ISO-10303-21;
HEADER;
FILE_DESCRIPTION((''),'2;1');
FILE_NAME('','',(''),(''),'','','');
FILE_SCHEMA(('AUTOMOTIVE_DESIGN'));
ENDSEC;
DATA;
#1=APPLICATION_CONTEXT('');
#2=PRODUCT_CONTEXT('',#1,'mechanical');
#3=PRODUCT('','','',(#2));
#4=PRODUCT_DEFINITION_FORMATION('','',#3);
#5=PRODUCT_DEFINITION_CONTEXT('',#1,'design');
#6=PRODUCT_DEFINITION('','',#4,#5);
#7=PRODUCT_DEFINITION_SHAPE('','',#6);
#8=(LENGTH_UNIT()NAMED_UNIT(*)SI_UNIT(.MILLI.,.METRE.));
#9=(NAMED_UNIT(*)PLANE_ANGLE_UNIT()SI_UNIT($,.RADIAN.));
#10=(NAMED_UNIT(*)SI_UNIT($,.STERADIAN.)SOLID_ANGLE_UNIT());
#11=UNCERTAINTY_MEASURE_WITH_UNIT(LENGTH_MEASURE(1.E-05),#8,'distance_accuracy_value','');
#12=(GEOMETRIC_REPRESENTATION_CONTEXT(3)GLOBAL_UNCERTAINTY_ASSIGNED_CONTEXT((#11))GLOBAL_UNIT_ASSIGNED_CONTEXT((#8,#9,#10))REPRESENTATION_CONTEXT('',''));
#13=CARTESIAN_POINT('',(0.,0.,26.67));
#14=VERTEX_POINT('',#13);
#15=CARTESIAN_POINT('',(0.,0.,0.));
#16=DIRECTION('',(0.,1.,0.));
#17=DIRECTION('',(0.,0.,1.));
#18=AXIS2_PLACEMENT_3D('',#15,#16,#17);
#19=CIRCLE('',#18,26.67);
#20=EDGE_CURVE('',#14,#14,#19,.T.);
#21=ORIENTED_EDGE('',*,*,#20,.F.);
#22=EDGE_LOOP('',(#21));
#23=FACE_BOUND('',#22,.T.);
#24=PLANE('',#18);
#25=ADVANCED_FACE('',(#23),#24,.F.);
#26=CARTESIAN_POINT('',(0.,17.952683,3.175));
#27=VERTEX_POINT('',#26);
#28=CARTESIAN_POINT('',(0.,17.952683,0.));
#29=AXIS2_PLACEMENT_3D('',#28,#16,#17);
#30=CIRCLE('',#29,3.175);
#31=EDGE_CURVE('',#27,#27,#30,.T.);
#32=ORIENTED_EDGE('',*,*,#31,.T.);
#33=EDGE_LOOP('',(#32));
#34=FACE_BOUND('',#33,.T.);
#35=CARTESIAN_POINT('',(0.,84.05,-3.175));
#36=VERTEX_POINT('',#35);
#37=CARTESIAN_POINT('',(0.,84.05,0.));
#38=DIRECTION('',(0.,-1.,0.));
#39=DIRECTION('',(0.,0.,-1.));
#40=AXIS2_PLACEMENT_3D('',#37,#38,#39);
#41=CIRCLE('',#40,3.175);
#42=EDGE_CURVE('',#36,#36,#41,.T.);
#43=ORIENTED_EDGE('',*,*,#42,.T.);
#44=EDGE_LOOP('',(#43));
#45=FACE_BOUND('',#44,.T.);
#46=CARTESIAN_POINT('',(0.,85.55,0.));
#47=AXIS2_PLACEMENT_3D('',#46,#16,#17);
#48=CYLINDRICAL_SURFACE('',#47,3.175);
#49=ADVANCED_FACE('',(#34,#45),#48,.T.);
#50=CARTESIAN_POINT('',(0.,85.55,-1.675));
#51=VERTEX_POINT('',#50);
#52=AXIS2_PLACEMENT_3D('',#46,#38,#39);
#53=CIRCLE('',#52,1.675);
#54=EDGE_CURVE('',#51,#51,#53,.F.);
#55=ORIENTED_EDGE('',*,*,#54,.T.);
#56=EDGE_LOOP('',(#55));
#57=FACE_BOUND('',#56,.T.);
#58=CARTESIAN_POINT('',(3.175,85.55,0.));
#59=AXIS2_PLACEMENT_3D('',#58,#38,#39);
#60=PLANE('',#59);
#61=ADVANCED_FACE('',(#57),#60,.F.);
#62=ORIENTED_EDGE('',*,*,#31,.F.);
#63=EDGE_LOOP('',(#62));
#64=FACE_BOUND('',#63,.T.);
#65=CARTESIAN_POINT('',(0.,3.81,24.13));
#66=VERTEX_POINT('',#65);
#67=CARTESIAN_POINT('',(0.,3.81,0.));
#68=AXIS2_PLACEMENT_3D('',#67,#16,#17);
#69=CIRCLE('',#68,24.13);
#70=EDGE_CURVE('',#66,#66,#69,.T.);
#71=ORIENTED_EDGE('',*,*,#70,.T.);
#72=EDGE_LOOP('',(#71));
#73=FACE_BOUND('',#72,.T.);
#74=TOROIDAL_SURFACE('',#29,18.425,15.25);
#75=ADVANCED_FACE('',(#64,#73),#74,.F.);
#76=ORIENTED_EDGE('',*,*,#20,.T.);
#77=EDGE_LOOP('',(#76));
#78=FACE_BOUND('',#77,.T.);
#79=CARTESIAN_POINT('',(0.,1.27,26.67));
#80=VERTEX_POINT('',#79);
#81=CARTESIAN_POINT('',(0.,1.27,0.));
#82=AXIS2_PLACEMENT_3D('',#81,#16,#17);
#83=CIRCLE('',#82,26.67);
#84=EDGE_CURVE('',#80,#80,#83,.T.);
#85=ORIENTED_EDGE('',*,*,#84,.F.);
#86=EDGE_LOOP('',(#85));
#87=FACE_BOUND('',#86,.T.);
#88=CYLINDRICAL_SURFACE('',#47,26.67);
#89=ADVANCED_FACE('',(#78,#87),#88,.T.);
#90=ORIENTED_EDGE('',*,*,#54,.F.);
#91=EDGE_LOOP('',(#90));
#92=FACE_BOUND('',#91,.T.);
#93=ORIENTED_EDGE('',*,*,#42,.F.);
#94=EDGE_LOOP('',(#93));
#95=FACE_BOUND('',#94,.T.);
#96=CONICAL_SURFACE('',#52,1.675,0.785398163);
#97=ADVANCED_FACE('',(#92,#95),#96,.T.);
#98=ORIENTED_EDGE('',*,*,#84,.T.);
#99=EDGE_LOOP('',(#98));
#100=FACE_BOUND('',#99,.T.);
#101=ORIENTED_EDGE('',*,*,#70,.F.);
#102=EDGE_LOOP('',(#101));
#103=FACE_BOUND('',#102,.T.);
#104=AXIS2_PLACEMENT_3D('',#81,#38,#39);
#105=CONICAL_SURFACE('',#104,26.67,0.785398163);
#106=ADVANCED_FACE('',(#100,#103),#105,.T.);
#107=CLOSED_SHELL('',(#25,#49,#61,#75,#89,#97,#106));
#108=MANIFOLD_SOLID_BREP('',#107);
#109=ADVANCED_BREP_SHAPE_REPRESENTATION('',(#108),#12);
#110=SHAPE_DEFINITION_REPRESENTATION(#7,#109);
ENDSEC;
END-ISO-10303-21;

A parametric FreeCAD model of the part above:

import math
import FreeCAD as App
import Part
import Sketcher
from FreeCAD import Vector
Q = App.Units.Quantity


def edges_at(feature, points):
    """Names of the edges that pass closest to the given points."""
    edges = feature.Shape.Edges
    near = lambda p: min(range(len(edges)), key=lambda i: edges[i].distToShape(Part.Vertex(*p))[0])
    return sorted({f"Edge{near(p) + 1}" for p in points})

doc = App.newDocument("Part")
body = doc.addObject("PartDesign::Body", "Body")

sketch1 = body.newObject("Sketcher::SketchObject", "Sketch")
sketch1.AttachmentSupport = (doc.getObject("XY_Plane"), [""])
sketch1.MapMode = "FlatFace"
sketch1.addGeometry(Part.LineSegment(Vector(0, 0, 0), Vector(26.67, 0, 0)), False)
sketch1.addGeometry(Part.LineSegment(Vector(26.67, 0, 0), Vector(26.67, 1.27, 0)), False)
sketch1.addGeometry(Part.LineSegment(Vector(26.67, 1.27, 0), Vector(24.13, 3.81, 0)), False)
sketch1.addGeometry(Part.ArcOfCircle(Part.Circle(Vector(18.425, 17.952683, 0), Vector(0, 0, 1), 15.25), math.radians(-180), math.radians(-68.031403)), False)
sketch1.addGeometry(Part.LineSegment(Vector(3.175, 17.952683, 0), Vector(3.175, 85.55, 0)), False)
sketch1.addGeometry(Part.LineSegment(Vector(3.175, 85.55, 0), Vector(0, 85.55, 0)), False)
sketch1.addGeometry(Part.LineSegment(Vector(0, 85.55, 0), Vector(0, 0, 0)), False)
sketch1.addConstraint(Sketcher.Constraint("Coincident", 0, 2, 1, 1))
sketch1.addConstraint(Sketcher.Constraint("Coincident", 1, 2, 2, 1))
sketch1.addConstraint(Sketcher.Constraint("Coincident", 2, 2, 3, 2))
sketch1.addConstraint(Sketcher.Constraint("Tangent", 3, 1, 4, 1))
sketch1.addConstraint(Sketcher.Constraint("Coincident", 4, 2, 5, 1))
sketch1.addConstraint(Sketcher.Constraint("Coincident", 5, 2, 6, 1))
sketch1.addConstraint(Sketcher.Constraint("Coincident", 6, 2, 0, 1))
sketch1.addConstraint(Sketcher.Constraint("Horizontal", 0))
sketch1.addConstraint(Sketcher.Constraint("Vertical", 1))
sketch1.addConstraint(Sketcher.Constraint("Vertical", 4))
sketch1.addConstraint(Sketcher.Constraint("Horizontal", 5))
sketch1.addConstraint(Sketcher.Constraint("Vertical", 6))
sketch1.addConstraint(Sketcher.Constraint("Coincident", 6, 2, -1, 1))
sketch1.addConstraint(Sketcher.Constraint("Angle", 2, Q("135 deg")))
sketch1.addConstraint(Sketcher.Constraint("DistanceX", 0, 1, 0, 2, Q("1.05 in")))
sketch1.addConstraint(Sketcher.Constraint("DistanceY", 1, 1, 1, 2, Q("0.05 in")))
sketch1.addConstraint(Sketcher.Constraint("DistanceX", 2, 2, 1, 2, Q("0.1 in")))
sketch1.addConstraint(Sketcher.Constraint("DistanceX", 5, 2, 5, 1, Q("0.125 in")))
sketch1.addConstraint(Sketcher.Constraint("Radius", 3, Q("15.25 mm")))
sketch1.addConstraint(Sketcher.Constraint("DistanceY", 6, 2, 6, 1, Q("85.55 mm")))
revolution = body.newObject("PartDesign::Revolution", "Revolution")
revolution.Profile = sketch1
revolution.ReferenceAxis = (sketch1, ["V_Axis"])
revolution.Angle = 360
doc.recompute()

chamfer = body.newObject("PartDesign::Chamfer", "Chamfer")
chamfer.Base = (revolution, edges_at(revolution, [(-3.175, 85.55, 0)]))
chamfer.Size = 1.5

doc.recompute()
